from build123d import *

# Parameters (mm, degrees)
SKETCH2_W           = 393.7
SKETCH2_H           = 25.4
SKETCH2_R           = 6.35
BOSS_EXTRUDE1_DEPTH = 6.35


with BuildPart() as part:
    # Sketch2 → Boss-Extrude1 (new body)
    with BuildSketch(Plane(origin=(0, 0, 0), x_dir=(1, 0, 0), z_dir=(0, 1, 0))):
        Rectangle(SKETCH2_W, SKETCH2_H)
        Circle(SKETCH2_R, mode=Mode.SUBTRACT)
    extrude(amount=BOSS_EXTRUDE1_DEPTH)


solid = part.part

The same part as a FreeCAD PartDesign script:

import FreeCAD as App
import Part
import Sketcher

V = App.Vector
Q = App.Units.Quantity


def add_polygon(sketch, points):
    """Adds a closed chain of lines whose ends are joined by coincident constraints."""
    first, n = sketch.GeometryCount, len(points)
    for a, b in zip(points, points[1:] + points[:1]):
        sketch.addGeometry(Part.LineSegment(App.Vector(*a, 0), App.Vector(*b, 0)), False)
    for i in range(n):
        sketch.addConstraint(Sketcher.Constraint("Coincident", first + i, 2, first + (i + 1) % n, 1))

doc = App.newDocument("Part")
params = doc.addObject("Spreadsheet::Sheet", "Params")
for row, (alias, value) in enumerate([
    ("sketch1_diameter", "0.5 in"),
    ("sketch1_height", "1 in"),
    ("sketch1_width", "15.5 in"),
    ("pad1_length", "0.25 in"),
], start=1):
    params.set(f"A{row}", alias)
    params.set(f"B{row}", "=" + value)
    params.setAlias(f"B{row}", alias)

body = doc.addObject("PartDesign::Body", "Body")

# Sketch on XZ plane
sketch1 = body.newObject("Sketcher::SketchObject", "Sketch")
sketch1.AttachmentSupport = (doc.getObject("XZ_Plane"), [""])
sketch1.MapMode = "FlatFace"
add_polygon(sketch1, [(-197, -13), (-197, 13), (197, 13), (197, -13)])  # lines 0-3
sketch1.addGeometry(Part.Circle(V(0, 0, 0), V(0, 0, 1), 6), False)  # 4
sketch1.addConstraint([
    Sketcher.Constraint("Vertical", 0),
    Sketcher.Constraint("Horizontal", 1),
    Sketcher.Constraint("Vertical", 2),
    Sketcher.Constraint("Horizontal", 3),
    Sketcher.Constraint("Coincident", 4, 3, -1, 1),
    Sketcher.Constraint("Symmetric", 0, 2, 2, 2, -1, 1),
    Sketcher.Constraint("Diameter", 4, Q("0.5 in")),
    Sketcher.Constraint("DistanceY", 0, 1, 0, 2, Q("1 in")),
    Sketcher.Constraint("DistanceX", 1, 1, 1, 2, Q("15.5 in")),
])
sketch1.setExpression("Constraints[10]", "Params.sketch1_diameter")
sketch1.setExpression("Constraints[11]", "Params.sketch1_height")
sketch1.setExpression("Constraints[12]", "Params.sketch1_width")
pad1 = body.newObject("PartDesign::Pad", "Pad")
pad1.Profile = sketch1
pad1.setExpression("Length", "Params.pad1_length")
pad1.Reversed = True

doc.recompute()
